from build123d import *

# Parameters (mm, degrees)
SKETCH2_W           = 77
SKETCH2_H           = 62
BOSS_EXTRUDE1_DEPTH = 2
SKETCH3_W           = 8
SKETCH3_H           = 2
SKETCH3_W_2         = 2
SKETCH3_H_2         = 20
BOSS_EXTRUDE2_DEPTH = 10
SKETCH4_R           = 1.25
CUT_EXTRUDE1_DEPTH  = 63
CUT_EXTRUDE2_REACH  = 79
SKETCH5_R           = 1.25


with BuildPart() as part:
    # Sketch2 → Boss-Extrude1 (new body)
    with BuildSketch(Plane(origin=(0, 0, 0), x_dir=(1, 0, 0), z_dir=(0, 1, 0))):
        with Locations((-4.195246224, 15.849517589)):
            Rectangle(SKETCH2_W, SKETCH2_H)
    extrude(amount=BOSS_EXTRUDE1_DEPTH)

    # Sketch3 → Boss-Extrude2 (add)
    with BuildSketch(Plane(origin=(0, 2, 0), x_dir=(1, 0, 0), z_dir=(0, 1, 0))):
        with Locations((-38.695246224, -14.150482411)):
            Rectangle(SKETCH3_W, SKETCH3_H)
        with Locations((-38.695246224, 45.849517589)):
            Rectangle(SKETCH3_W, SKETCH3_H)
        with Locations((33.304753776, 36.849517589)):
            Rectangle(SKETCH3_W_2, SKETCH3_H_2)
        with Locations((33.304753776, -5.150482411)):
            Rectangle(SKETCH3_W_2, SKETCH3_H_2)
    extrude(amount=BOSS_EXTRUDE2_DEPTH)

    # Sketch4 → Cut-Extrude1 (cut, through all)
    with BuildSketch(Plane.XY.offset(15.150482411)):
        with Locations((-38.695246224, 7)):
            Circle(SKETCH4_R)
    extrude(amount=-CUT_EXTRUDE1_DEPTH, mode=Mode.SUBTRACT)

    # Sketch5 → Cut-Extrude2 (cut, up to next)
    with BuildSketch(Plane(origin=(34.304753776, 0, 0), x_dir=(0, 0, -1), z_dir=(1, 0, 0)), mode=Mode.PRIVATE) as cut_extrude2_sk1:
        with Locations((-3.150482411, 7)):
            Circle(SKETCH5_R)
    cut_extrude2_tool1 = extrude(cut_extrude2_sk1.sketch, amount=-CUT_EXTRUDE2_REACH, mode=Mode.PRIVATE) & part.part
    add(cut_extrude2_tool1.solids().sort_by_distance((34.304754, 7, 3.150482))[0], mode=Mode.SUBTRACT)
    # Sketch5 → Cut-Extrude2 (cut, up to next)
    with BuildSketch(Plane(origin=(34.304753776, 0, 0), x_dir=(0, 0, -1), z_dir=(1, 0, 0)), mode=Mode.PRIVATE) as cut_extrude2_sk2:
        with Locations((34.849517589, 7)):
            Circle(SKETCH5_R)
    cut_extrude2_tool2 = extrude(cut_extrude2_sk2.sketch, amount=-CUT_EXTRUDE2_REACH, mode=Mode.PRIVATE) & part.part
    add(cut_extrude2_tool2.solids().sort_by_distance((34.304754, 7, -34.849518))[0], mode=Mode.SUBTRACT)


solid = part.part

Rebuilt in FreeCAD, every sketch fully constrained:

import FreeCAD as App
import Part
import Sketcher

V = App.Vector


def add_polygon(sketch, points):
    """Adds a closed chain of lines whose ends are joined by coincident constraints."""
    first, n = sketch.GeometryCount, len(points)
    for a, b in zip(points, points[1:] + points[:1]):
        sketch.addGeometry(Part.LineSegment(App.Vector(*a, 0), App.Vector(*b, 0)), False)
    for i in range(n):
        sketch.addConstraint(Sketcher.Constraint("Coincident", first + i, 2, first + (i + 1) % n, 1))

doc = App.newDocument("Part")
body = doc.addObject("PartDesign::Body", "Body")

# Sketch on XZ plane
sketch1 = body.newObject("Sketcher::SketchObject", "Sketch")
sketch1.AttachmentSupport = (doc.getObject("XZ_Plane"), [""])
sketch1.MapMode = "FlatFace"
add_polygon(sketch1, [(-43, -47), (-43, 15), (34, 15), (34, -47)])  # lines 0-3
sketch1.addConstraint([
    Sketcher.Constraint("Vertical", 0),
    Sketcher.Constraint("Horizontal", 1),
    Sketcher.Constraint("Vertical", 2),
    Sketcher.Constraint("Horizontal", 3),
    Sketcher.Constraint("DistanceX", 1, 1, 1, 2, 77.0),
    Sketcher.Constraint("DistanceY", 0, 1, 0, 2, 62.0),
    Sketcher.Constraint("DistanceX", 0, 2, -1, 1, 42.695246),
    Sketcher.Constraint("DistanceY", -1, 1, 0, 2, 15.150482),
])
pad1 = body.newObject("PartDesign::Pad", "Pad")
pad1.Profile = sketch1
pad1.Length = 2
pad1.Reversed = True

# Sketch on XZ plane
sketch2 = body.newObject("Sketcher::SketchObject", "Sketch001")
sketch2.AttachmentSupport = (doc.getObject("XZ_Plane"), [""])
sketch2.MapMode = "FlatFace"
sketch2.AttachmentOffset = App.Placement(V(0, 0, -2), App.Rotation())
add_polygon(sketch2, [(-42.7, 13.2), (-42.7, 15.2), (-34.7, 15.2), (-34.7, 13.2)])  # lines 0-3
add_polygon(sketch2, [(-42.7, -46.8), (-42.7, -44.8), (-34.7, -44.8), (-34.7, -46.8)])  # lines 4-7
add_polygon(sketch2, [(32.3, -46.8), (32.3, -26.8), (34.3, -26.8), (34.3, -46.8)])  # lines 8-11
add_polygon(sketch2, [(32.3, -4.8), (32.3, 15.2), (34.3, 15.2), (34.3, -4.8)])  # lines 12-15
sketch2.addConstraint([
    Sketcher.Constraint("Vertical", 0),
    Sketcher.Constraint("Horizontal", 1),
    Sketcher.Constraint("Vertical", 2),
    Sketcher.Constraint("Horizontal", 3),
    Sketcher.Constraint("Vertical", 4),
    Sketcher.Constraint("Horizontal", 5),
    Sketcher.Constraint("Vertical", 6),
    Sketcher.Constraint("Horizontal", 7),
    Sketcher.Constraint("Vertical", 8),
    Sketcher.Constraint("Horizontal", 9),
    Sketcher.Constraint("Vertical", 10),
    Sketcher.Constraint("Horizontal", 11),
    Sketcher.Constraint("Vertical", 12),
    Sketcher.Constraint("Horizontal", 13),
    Sketcher.Constraint("Vertical", 14),
    Sketcher.Constraint("Horizontal", 15),
    Sketcher.Constraint("Horizontal", 7, 2, 10, 2),
    Sketcher.Constraint("Horizontal", 1, 2, 12, 2),
    Sketcher.Constraint("Vertical", 3, 2, 4, 2),
    Sketcher.Constraint("Vertical", 2, 2, 5, 2),
    Sketcher.Constraint("Vertical", 11, 2, 12, 2),
    Sketcher.Constraint("Vertical", 10, 2, 13, 2),
    Sketcher.Constraint("Equal", 15, 0),
    Sketcher.Constraint("Equal", 2, 4),
    Sketcher.Constraint("Equal", 10, 12),
    Sketcher.Constraint("DistanceX", 1, 1, 1, 2, 8.0),
    Sketcher.Constraint("DistanceX", 9, 1, 9, 2, 2.0),
    Sketcher.Constraint("DistanceY", 8, 1, 8, 2, 20.0),
    Sketcher.Constraint("DistanceY", 4, 2, 3, 2, 58.0),
    Sketcher.Constraint("DistanceX", 5, 2, 8, 2, 67.0),
    Sketcher.Constraint("DistanceX", 0, 2, -1, 1, 42.695246),
    Sketcher.Constraint("DistanceY", -1, 1, 0, 2, 15.150482),
])
pad2 = body.newObject("PartDesign::Pad", "Pad001")
pad2.Profile = sketch2
pad2.Length = 10
pad2.Reversed = True

# Sketch on XY plane
sketch3 = body.newObject("Sketcher::SketchObject", "Sketch002")
sketch3.AttachmentSupport = (doc.getObject("XY_Plane"), [""])
sketch3.MapMode = "FlatFace"
sketch3.AttachmentOffset = App.Placement(V(0, 0, 15.150482), App.Rotation())
sketch3.addGeometry(Part.Circle(V(-38.7, 7, 0), V(0, 0, 1), 1.2), False)
sketch3.addConstraint([
    Sketcher.Constraint("Diameter", 0, 2.5),
    Sketcher.Constraint("DistanceY", -1, 1, 0, 3, 7.0),
    Sketcher.Constraint("DistanceX", 0, 3, -1, 1, 38.695246),
])
pocket1 = body.newObject("PartDesign::Pocket", "Pocket")
pocket1.Profile = sketch3
pocket1.Type = "ThroughAll"

# Sketch on YZ plane
sketch4 = body.newObject("Sketcher::SketchObject", "Sketch003")
sketch4.AttachmentSupport = (doc.getObject("YZ_Plane"), [""])
sketch4.MapMode = "FlatFace"
sketch4.AttachmentOffset = App.Placement(V(0, 0, 34.304754), App.Rotation())
sketch4.addGeometry(Part.Circle(V(7, 3.2, 0), V(0, 0, 1), 1.2), False)
sketch4.addConstraint([
    Sketcher.Constraint("Diameter", 0, 2.5),
    Sketcher.Constraint("DistanceX", -1, 1, 0, 3, 7.0),
    Sketcher.Constraint("DistanceY", -1, 1, 0, 3, 3.150482),
])
pocket2 = body.newObject("PartDesign::Pocket", "Pocket001")
pocket2.Profile = sketch4
pocket2.Type = "UpToFirst"

# Sketch on YZ plane
sketch5 = body.newObject("Sketcher::SketchObject", "Sketch004")
sketch5.AttachmentSupport = (doc.getObject("YZ_Plane"), [""])
sketch5.MapMode = "FlatFace"
sketch5.AttachmentOffset = App.Placement(V(0, 0, 34.304754), App.Rotation())
sketch5.addGeometry(Part.Circle(V(7, -34.8, 0), V(0, 0, 1), 1.2), False)
sketch5.addConstraint([
    Sketcher.Constraint("Diameter", 0, 2.5),
    Sketcher.Constraint("DistanceX", -1, 1, 0, 3, 7.0),
    Sketcher.Constraint("DistanceY", 0, 3, -1, 1, 34.849518),
])
pocket3 = body.newObject("PartDesign::Pocket", "Pocket002")
pocket3.Profile = sketch5
pocket3.Type = "UpToFirst"

doc.recompute()
